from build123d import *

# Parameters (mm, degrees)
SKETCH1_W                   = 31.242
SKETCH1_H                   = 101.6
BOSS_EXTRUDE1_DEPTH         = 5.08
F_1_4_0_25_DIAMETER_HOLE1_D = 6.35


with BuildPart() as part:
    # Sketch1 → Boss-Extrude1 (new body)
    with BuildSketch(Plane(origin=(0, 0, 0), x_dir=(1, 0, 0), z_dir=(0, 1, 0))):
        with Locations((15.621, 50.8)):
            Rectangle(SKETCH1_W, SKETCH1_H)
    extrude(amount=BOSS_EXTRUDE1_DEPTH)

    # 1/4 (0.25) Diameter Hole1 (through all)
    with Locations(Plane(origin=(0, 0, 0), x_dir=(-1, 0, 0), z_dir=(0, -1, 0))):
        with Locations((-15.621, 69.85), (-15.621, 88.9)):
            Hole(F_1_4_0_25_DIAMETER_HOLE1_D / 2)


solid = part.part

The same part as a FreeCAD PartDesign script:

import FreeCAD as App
import Part
import Sketcher

V = App.Vector
Q = App.Units.Quantity


def add_polygon(sketch, points):
    """Adds a closed chain of lines whose ends are joined by coincident constraints."""
    first, n = sketch.GeometryCount, len(points)
    for a, b in zip(points, points[1:] + points[:1]):
        sketch.addGeometry(Part.LineSegment(App.Vector(*a, 0), App.Vector(*b, 0)), False)
    for i in range(n):
        sketch.addConstraint(Sketcher.Constraint("Coincident", first + i, 2, first + (i + 1) % n, 1))

doc = App.newDocument("Part")
body = doc.addObject("PartDesign::Body", "Body")

sketch1 = body.newObject("Sketcher::SketchObject", "Sketch")
sketch1.AttachmentSupport = (doc.getObject("XZ_Plane"), [""])
sketch1.MapMode = "FlatFace"
add_polygon(sketch1, [(0, -102), (0, 0), (31, 0), (31, -102)])
sketch1.addConstraint([
    Sketcher.Constraint("Vertical", 0),
    Sketcher.Constraint("Horizontal", 1),
    Sketcher.Constraint("Vertical", 2),
    Sketcher.Constraint("Horizontal", 3),
    Sketcher.Constraint("Coincident", 0, 2, -1, 1),
    Sketcher.Constraint("DistanceY", 0, 1, 0, 2, Q("4 in")),
    Sketcher.Constraint("DistanceX", 1, 1, 1, 2, Q("1.23 in")),
])
pad1 = body.newObject("PartDesign::Pad", "Pad")
pad1.Profile = sketch1
pad1.Length = Q("0.2 in")
pad1.Reversed = True

sketch2 = body.newObject("Sketcher::SketchObject", "Sketch001")
sketch2.AttachmentSupport = (doc.getObject("XZ_Plane"), [""])
sketch2.MapMode = "FlatFace"
sketch2.addGeometry([
    Part.Circle(V(15.6, -69.8, 0), V(0, 0, 1), 3.2),
    Part.Circle(V(15.6, -88.9, 0), V(0, 0, 1), 3.2),
], False)
sketch2.addConstraint([
    Sketcher.Constraint("Equal", 0, 1),
    Sketcher.Constraint("Vertical", 0, 3, 1, 3),
    Sketcher.Constraint("Diameter", 0, Q("0.25 in")),
    Sketcher.Constraint("DistanceY", 1, 3, -1, 1, Q("3.5 in")),
    Sketcher.Constraint("DistanceY", 0, 3, -1, 1, Q("2.75 in")),
    Sketcher.Constraint("DistanceX", -1, 1, 0, 3, Q("0.615 in")),
])
doc.recompute()
hole = body.newObject("PartDesign::Hole", "Hole")
hole.Profile = sketch2
hole.ThreadType = "None"
hole.Diameter = Q("0.25 in")
hole.DepthType = "ThroughAll"

doc.recompute()
